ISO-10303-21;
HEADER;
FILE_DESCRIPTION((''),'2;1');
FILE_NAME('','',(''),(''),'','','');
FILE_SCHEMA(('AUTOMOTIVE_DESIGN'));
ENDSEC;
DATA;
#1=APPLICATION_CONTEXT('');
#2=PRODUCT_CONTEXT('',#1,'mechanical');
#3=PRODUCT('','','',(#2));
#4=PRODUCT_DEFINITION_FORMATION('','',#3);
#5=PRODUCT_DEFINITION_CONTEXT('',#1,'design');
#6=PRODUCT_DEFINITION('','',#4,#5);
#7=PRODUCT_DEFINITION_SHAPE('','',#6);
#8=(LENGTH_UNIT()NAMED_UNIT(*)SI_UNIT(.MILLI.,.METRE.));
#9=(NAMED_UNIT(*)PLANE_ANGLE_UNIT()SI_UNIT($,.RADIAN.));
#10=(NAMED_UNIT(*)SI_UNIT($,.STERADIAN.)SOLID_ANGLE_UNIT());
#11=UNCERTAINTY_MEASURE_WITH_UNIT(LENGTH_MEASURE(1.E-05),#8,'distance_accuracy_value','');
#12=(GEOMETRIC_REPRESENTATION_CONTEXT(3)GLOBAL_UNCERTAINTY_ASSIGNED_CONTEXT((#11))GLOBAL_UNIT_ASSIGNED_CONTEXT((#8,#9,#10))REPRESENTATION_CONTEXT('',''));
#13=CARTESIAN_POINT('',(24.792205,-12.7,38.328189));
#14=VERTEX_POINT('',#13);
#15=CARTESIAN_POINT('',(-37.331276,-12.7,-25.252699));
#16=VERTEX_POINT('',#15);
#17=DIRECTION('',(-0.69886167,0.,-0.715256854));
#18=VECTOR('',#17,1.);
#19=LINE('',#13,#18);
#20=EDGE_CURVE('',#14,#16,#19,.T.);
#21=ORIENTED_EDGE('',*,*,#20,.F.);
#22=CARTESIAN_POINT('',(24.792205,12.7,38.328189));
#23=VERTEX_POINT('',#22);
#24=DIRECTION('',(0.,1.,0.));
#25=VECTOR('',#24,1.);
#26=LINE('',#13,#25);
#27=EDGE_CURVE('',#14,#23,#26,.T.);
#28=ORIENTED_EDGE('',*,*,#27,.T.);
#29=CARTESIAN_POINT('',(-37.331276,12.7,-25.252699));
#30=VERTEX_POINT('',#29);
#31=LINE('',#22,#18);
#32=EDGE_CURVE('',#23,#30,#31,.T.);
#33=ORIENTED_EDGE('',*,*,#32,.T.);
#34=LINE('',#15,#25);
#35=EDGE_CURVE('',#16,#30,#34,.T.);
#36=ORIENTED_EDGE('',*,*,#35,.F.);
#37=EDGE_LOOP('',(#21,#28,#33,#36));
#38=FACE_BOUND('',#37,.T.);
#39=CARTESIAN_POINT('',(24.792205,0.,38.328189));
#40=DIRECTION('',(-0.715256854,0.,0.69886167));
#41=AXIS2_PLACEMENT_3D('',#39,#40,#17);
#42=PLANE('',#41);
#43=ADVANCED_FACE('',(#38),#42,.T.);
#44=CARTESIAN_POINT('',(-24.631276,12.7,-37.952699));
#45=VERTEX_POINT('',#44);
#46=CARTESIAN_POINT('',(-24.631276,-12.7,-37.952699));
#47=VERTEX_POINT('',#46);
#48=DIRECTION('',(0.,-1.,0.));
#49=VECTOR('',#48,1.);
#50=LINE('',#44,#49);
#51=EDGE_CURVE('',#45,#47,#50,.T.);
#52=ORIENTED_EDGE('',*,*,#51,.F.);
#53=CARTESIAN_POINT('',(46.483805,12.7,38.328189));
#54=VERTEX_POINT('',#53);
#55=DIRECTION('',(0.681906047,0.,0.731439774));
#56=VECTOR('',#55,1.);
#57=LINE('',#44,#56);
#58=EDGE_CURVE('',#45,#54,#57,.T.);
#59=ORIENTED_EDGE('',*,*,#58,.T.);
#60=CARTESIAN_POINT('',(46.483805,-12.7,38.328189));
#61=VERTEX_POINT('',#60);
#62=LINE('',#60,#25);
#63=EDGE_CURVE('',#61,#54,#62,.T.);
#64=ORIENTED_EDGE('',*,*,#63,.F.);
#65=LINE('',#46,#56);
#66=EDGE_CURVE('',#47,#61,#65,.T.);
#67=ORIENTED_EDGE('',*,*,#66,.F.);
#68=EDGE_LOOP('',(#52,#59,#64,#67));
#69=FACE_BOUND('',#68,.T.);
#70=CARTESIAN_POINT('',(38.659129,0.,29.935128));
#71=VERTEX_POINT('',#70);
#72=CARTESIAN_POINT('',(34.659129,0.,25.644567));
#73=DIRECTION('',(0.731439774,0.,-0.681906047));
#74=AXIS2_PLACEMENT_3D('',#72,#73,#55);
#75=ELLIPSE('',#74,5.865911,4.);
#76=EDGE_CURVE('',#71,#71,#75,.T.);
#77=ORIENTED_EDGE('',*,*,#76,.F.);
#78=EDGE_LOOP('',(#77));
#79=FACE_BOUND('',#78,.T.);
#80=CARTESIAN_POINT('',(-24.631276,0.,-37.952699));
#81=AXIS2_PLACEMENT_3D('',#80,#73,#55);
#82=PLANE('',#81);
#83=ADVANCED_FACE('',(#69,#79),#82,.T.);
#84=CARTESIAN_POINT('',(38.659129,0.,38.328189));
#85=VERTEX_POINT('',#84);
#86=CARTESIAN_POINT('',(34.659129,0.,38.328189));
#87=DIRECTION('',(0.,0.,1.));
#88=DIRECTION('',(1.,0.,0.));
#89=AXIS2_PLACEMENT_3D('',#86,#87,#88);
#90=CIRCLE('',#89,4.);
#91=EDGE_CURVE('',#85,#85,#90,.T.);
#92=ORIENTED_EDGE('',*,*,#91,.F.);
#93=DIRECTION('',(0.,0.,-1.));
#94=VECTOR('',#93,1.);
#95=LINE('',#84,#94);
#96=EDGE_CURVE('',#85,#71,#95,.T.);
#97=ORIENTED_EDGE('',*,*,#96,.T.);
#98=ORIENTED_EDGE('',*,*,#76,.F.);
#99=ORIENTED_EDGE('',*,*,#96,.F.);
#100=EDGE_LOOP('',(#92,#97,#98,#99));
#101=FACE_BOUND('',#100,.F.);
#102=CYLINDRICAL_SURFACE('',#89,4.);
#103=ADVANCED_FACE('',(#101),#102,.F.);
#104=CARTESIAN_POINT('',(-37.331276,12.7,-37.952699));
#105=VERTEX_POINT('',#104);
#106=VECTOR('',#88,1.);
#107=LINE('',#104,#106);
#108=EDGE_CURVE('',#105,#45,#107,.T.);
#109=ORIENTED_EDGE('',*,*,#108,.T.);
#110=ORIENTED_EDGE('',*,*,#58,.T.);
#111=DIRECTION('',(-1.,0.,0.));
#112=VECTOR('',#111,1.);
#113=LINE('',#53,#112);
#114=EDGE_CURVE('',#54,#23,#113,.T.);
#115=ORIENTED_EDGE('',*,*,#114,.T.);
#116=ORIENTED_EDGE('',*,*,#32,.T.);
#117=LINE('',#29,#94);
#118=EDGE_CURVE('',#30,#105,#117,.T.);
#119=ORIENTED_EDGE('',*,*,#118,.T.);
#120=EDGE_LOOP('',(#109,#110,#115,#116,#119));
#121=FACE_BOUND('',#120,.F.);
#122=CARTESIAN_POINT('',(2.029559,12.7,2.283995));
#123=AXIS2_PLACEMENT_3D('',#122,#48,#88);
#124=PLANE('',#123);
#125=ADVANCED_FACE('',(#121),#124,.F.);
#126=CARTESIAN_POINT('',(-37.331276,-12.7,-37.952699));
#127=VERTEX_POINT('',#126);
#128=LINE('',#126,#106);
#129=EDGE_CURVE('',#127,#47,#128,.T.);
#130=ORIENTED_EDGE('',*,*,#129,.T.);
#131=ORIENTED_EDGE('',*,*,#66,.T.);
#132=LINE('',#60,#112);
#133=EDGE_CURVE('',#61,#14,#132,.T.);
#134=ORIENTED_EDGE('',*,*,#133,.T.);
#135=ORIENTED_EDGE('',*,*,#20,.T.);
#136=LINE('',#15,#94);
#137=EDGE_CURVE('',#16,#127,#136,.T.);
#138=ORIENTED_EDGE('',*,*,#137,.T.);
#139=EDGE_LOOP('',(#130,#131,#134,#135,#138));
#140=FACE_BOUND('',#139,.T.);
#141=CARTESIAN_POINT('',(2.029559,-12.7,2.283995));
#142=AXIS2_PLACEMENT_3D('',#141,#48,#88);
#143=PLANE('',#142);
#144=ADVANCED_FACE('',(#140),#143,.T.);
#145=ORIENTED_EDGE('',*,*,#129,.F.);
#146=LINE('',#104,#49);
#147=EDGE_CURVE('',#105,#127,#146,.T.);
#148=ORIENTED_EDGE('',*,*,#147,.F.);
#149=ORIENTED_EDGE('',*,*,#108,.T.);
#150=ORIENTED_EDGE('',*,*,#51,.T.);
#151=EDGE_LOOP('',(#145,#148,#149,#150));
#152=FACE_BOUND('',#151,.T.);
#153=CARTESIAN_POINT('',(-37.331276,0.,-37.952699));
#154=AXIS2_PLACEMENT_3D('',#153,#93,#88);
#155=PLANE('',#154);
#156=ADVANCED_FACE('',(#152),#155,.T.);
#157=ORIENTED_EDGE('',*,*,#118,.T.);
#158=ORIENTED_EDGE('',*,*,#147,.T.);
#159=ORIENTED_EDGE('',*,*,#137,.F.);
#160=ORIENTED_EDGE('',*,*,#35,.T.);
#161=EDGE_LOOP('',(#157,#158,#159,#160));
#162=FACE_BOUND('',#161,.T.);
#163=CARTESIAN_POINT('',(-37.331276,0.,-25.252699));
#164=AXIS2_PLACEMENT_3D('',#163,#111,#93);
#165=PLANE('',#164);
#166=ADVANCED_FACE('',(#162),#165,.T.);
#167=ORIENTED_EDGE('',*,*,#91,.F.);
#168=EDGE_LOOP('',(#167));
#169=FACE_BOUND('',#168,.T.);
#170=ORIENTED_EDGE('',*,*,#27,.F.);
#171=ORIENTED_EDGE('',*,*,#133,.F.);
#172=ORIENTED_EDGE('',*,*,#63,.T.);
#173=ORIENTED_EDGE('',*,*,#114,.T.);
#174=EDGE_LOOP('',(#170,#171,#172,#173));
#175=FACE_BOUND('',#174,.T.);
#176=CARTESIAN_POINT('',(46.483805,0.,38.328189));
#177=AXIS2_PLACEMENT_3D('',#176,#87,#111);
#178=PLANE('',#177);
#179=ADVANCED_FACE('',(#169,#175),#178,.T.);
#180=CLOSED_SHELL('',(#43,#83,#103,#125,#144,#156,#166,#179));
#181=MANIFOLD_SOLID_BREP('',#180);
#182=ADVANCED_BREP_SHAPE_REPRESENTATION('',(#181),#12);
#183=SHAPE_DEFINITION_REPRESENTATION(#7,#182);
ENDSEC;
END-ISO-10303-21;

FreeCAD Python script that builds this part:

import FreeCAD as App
import Part
import Sketcher
from FreeCAD import Vector
Q = App.Units.Quantity


def add_polygon(sketch, points):
    """Adds a closed chain of lines whose ends are joined by coincident constraints."""
    first, n = sketch.GeometryCount, len(points)
    for a, b in zip(points, points[1:] + points[:1]):
        sketch.addGeometry(Part.LineSegment(App.Vector(*a, 0), App.Vector(*b, 0)), False)
    for i in range(n):
        sketch.addConstraint(Sketcher.Constraint("Coincident", first + i, 2, first + (i + 1) % n, 1))

doc = App.newDocument("Part")
body = doc.addObject("PartDesign::Body", "Body")

# Sketch on XZ plane
sketch1 = body.newObject("Sketcher::SketchObject", "Sketch")
sketch1.AttachmentSupport = (doc.getObject("XZ_Plane"), [""])
sketch1.MapMode = "FlatFace"
add_polygon(sketch1, [(-37.331276, -25.252699), (-37.331276, -37.952699), (-24.631276, -37.952699), (46.483805, 38.328189), (24.792205, 38.328189)])  # lines 0-4
sketch1.addConstraint([
    Sketcher.Constraint("Vertical", 0),
    Sketcher.Constraint("Horizontal", 1),
    Sketcher.Constraint("Horizontal", 3),
    Sketcher.Constraint("Equal", 1, 0),
    Sketcher.Constraint("DistanceX", 1, 1, 1, 2, Q("0.5 in")),
    Sketcher.Constraint("DistanceX", 3, 2, 3, 1, Q("0.854 in")),
    Sketcher.Constraint("DistanceY", 0, 2, -1, 1, 37.952699),
    Sketcher.Constraint("Distance", 2, 104.288679),
    Sketcher.Constraint("DistanceY", -1, 1, 2, 2, 38.328189),
    Sketcher.Constraint("DistanceX", 0, 2, -1, 1, 37.331276),
])
pad1 = body.newObject("PartDesign::Pad", "Pad")
pad1.Profile = sketch1
pad1.Length = Q("1 in")
pad1.Midplane = True

# Sketch on XY plane
sketch2 = body.newObject("Sketcher::SketchObject", "Sketch001")
sketch2.AttachmentSupport = (doc.getObject("XY_Plane"), [""])
sketch2.MapMode = "FlatFace"
sketch2.AttachmentOffset = App.Placement(Vector(0, 0, 38.328189), App.Rotation())
sketch2.addGeometry(Part.Circle(Vector(34.659129, 0, 0), Vector(0, 0, 1), 4), False)
sketch2.addConstraint([
    Sketcher.Constraint("PointOnObject", 0, 3, -1),
    Sketcher.Constraint("Diameter", 0, 8.0),
    Sketcher.Constraint("DistanceX", -1, 1, 0, 3, 34.659129),
])
pocket1 = body.newObject("PartDesign::Pocket", "Pocket")
pocket1.Profile = sketch2
pocket1.Length = Q("1 in")

doc.recompute()
